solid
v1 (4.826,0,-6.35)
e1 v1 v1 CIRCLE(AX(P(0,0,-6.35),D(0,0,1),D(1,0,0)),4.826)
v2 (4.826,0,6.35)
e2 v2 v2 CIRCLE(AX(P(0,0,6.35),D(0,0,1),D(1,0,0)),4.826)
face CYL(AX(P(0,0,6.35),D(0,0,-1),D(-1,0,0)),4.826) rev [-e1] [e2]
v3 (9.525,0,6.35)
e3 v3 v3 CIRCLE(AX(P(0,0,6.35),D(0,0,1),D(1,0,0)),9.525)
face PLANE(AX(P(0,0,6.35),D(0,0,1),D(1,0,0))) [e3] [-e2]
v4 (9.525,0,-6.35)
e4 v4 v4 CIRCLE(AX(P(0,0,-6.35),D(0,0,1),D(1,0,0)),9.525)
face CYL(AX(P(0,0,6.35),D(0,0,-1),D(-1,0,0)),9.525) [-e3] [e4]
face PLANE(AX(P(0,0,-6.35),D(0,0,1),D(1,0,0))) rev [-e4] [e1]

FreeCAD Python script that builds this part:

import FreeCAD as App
import Part
import Sketcher
from FreeCAD import Vector
Q = App.Units.Quantity

doc = App.newDocument("Part")
body = doc.addObject("PartDesign::Body", "Body")

# Sketch on XY plane
sketch1 = body.newObject("Sketcher::SketchObject", "Sketch")
sketch1.AttachmentSupport = (doc.getObject("XY_Plane"), [""])
sketch1.MapMode = "FlatFace"
sketch1.addGeometry([
    Part.Circle(Vector(0, 0, 0), Vector(0, 0, 1), 9.5),
    Part.Circle(Vector(0, 0, 0), Vector(0, 0, 1), 4.8),
], False)
sketch1.addConstraint([
    Sketcher.Constraint("Coincident", 0, 3, -1, 1),
    Sketcher.Constraint("Coincident", 1, 3, -1, 1),
    Sketcher.Constraint("Diameter", 0, Q("0.75 in")),
    Sketcher.Constraint("Diameter", 1, Q("0.38 in")),
])
pad1 = body.newObject("PartDesign::Pad", "Pad")
pad1.Profile = sketch1
pad1.Type = "TwoLengths"
pad1.Length = Q("0.25 in")
pad1.Length2 = Q("0.25 in")

doc.recompute()
